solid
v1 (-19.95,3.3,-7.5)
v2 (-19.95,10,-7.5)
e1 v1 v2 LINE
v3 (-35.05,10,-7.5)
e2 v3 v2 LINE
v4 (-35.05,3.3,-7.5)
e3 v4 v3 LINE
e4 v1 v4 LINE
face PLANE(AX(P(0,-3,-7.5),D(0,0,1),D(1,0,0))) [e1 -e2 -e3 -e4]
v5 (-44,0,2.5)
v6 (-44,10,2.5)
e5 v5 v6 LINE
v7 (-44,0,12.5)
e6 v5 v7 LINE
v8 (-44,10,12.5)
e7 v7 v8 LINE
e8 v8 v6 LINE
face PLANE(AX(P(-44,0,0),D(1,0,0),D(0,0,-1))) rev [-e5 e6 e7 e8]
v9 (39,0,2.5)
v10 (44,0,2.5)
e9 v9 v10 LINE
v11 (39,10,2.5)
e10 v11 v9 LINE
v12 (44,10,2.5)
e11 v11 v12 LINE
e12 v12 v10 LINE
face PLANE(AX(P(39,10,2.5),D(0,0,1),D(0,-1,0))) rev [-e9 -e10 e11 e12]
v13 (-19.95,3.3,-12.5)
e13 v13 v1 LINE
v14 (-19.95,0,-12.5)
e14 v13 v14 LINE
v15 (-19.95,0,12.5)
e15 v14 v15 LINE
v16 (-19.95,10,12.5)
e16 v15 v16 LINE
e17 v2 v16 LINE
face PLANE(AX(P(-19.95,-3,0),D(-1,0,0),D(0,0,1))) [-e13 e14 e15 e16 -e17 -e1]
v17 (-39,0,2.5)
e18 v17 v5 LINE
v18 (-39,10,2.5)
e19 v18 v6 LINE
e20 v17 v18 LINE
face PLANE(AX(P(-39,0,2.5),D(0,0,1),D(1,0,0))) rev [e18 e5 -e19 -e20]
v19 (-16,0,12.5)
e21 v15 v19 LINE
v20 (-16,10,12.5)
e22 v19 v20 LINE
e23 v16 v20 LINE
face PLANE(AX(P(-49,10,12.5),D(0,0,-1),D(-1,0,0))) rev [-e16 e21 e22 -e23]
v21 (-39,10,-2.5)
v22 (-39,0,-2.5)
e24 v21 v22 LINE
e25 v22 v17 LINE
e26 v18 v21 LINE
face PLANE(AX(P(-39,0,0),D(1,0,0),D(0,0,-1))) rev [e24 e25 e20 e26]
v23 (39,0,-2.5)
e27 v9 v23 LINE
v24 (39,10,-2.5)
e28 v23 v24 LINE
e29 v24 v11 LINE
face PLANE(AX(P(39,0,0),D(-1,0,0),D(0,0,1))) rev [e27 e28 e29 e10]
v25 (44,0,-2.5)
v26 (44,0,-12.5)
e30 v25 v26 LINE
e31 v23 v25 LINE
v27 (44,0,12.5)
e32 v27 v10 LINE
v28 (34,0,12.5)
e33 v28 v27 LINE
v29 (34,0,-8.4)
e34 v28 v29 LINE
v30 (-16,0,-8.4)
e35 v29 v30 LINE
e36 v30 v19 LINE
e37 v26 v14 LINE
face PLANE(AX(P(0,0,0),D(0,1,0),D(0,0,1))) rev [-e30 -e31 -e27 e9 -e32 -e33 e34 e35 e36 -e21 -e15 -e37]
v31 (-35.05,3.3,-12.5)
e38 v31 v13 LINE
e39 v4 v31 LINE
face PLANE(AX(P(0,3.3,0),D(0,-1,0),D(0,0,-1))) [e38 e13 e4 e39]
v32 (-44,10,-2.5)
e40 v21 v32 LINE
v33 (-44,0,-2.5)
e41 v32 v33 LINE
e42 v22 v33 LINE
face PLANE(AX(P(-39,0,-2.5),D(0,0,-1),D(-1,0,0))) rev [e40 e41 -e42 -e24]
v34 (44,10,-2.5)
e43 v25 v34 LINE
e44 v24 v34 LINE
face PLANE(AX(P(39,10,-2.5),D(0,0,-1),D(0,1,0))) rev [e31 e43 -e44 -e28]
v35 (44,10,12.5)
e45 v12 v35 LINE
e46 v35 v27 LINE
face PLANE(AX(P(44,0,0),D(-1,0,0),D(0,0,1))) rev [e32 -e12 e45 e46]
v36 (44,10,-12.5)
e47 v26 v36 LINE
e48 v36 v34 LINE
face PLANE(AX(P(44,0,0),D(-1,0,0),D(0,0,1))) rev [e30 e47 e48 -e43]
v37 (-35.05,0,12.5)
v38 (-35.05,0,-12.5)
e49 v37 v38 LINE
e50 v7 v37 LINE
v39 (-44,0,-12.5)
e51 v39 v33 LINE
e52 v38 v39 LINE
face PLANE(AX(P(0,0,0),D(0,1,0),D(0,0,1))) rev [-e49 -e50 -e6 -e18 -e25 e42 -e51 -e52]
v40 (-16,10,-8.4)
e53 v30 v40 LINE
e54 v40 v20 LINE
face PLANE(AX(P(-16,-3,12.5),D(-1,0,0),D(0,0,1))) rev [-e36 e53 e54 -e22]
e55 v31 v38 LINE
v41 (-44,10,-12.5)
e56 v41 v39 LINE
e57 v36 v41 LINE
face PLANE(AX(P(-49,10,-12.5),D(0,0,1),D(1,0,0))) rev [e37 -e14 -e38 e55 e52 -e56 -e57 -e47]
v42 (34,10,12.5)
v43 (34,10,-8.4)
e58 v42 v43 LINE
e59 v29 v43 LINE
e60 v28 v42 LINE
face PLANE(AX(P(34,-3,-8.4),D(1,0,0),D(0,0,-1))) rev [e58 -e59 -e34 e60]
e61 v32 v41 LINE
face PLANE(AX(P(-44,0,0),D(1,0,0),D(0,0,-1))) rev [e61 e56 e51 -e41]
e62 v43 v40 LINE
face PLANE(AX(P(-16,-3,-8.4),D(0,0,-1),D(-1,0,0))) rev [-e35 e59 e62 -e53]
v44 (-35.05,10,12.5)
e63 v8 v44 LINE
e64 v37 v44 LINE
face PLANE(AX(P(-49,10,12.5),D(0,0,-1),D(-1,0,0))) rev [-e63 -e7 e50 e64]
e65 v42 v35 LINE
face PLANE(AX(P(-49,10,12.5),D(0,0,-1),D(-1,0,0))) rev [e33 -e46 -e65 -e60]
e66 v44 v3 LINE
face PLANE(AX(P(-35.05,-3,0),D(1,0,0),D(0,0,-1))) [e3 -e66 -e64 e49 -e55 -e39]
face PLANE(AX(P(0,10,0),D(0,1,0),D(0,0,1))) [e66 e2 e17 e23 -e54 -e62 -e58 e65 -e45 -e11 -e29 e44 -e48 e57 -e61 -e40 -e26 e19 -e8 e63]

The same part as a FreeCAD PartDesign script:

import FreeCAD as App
import Part
import Sketcher

V = App.Vector
Q = App.Units.Quantity


def add_polygon(sketch, points):
    """Adds a closed chain of lines whose ends are joined by coincident constraints."""
    first, n = sketch.GeometryCount, len(points)
    for a, b in zip(points, points[1:] + points[:1]):
        sketch.addGeometry(Part.LineSegment(App.Vector(*a, 0), App.Vector(*b, 0)), False)
    for i in range(n):
        sketch.addConstraint(Sketcher.Constraint("Coincident", first + i, 2, first + (i + 1) % n, 1))

doc = App.newDocument("Part")
body = doc.addObject("PartDesign::Body", "Body")

# Sketch on XZ plane
sketch1 = doc.addObject("Sketcher::SketchObject", "Sketch")
body.addObject(sketch1)
sketch1.AttachmentSupport = (doc.XZ_Plane, [""])
sketch1.MapMode = "FlatFace"
add_polygon(sketch1, [(-49, -12), (-49, 12), (49, 12), (49, -12)])  # lines 0-3
sketch1.addConstraint([
    Sketcher.Constraint("Vertical", 0),
    Sketcher.Constraint("Horizontal", 1),
    Sketcher.Constraint("Vertical", 2),
    Sketcher.Constraint("Horizontal", 3),
    Sketcher.Constraint("Symmetric", 0, 2, 2, 2, -1, 1),
    Sketcher.Constraint("DistanceX", 1, 1, 1, 2, Q("98 mm")),
    Sketcher.Constraint("DistanceY", 0, 1, 0, 2, Q("25 mm")),
])
pad1 = doc.addObject("PartDesign::Pad", "Pad")
body.addObject(pad1)
pad1.Profile = sketch1
pad1.Length = 10
pad1.Reversed = True

# Sketch on YZ plane
sketch2 = doc.addObject("Sketcher::SketchObject", "Sketch001")
body.addObject(sketch2)
sketch2.AttachmentSupport = (doc.YZ_Plane, [""])
sketch2.MapMode = "FlatFace"
sketch2.AttachmentOffset = App.Placement(V(0, 0, -49), App.Rotation())
add_polygon(sketch2, [(10, -12), (0, -12), (0, 12), (10, 12)])  # lines 0-3
sketch2.addConstraint([
    Sketcher.Constraint("Horizontal", 0),
    Sketcher.Constraint("Vertical", 1),
    Sketcher.Constraint("Horizontal", 2),
    Sketcher.Constraint("Vertical", 3),
    Sketcher.Constraint("Symmetric", 0, 2, 1, 2, -1, 1),
    Sketcher.Constraint("DistanceX", 0, 2, 0, 1, Q("10 mm")),
    Sketcher.Constraint("DistanceY", 1, 1, 1, 2, Q("25 mm")),
])
pocket1 = doc.addObject("PartDesign::Pocket", "Pocket")
body.addObject(pocket1)
pocket1.Profile = sketch2
pocket1.Length = 5
pocket1.Reversed = True

# Sketch on YZ plane
sketch3 = doc.addObject("Sketcher::SketchObject", "Sketch002")
body.addObject(sketch3)
sketch3.AttachmentSupport = (doc.YZ_Plane, [""])
sketch3.MapMode = "FlatFace"
sketch3.AttachmentOffset = App.Placement(V(0, 0, 49), App.Rotation())
add_polygon(sketch3, [(10, 12), (0, 12), (0, -12), (10, -12)])  # lines 0-3
sketch3.addConstraint([
    Sketcher.Constraint("Horizontal", 0),
    Sketcher.Constraint("Vertical", 1),
    Sketcher.Constraint("Horizontal", 2),
    Sketcher.Constraint("Vertical", 3),
    Sketcher.Constraint("Symmetric", 0, 2, 1, 2, -1, 1),
    Sketcher.Constraint("DistanceX", 0, 2, 0, 1, Q("10 mm")),
    Sketcher.Constraint("DistanceY", 1, 2, 1, 1, Q("25 mm")),
])
pocket2 = doc.addObject("PartDesign::Pocket", "Pocket001")
body.addObject(pocket2)
pocket2.Profile = sketch3
pocket2.Length = 5

# Sketch on YZ plane
sketch4 = doc.addObject("Sketcher::SketchObject", "Sketch003")
body.addObject(sketch4)
sketch4.AttachmentSupport = (doc.YZ_Plane, [""])
sketch4.MapMode = "FlatFace"
sketch4.AttachmentOffset = App.Placement(V(0, 0, 44), App.Rotation())
add_polygon(sketch4, [(10, 2), (0, 2), (0, -2), (10, -2)])  # lines 0-3
sketch4.addConstraint([
    Sketcher.Constraint("Horizontal", 0),
    Sketcher.Constraint("Vertical", 1),
    Sketcher.Constraint("Horizontal", 2),
    Sketcher.Constraint("Vertical", 3),
    Sketcher.Constraint("Symmetric", 0, 2, 1, 2, -1, 1),
    Sketcher.Constraint("DistanceX", 0, 2, 0, 1, Q("10 mm")),
    Sketcher.Constraint("DistanceY", 1, 2, 1, 1, Q("5 mm")),
])
pocket3 = doc.addObject("PartDesign::Pocket", "Pocket002")
body.addObject(pocket3)
pocket3.Profile = sketch4
pocket3.Length = 5

# Sketch on YZ plane
sketch5 = doc.addObject("Sketcher::SketchObject", "Sketch004")
body.addObject(sketch5)
sketch5.AttachmentSupport = (doc.YZ_Plane, [""])
sketch5.MapMode = "FlatFace"
sketch5.AttachmentOffset = App.Placement(V(0, 0, -44), App.Rotation())
add_polygon(sketch5, [(10, -2), (0, -2), (0, 2), (10, 2)])  # lines 0-3
sketch5.addConstraint([
    Sketcher.Constraint("Horizontal", 0),
    Sketcher.Constraint("Vertical", 1),
    Sketcher.Constraint("Horizontal", 2),
    Sketcher.Constraint("Vertical", 3),
    Sketcher.Constraint("Symmetric", 0, 2, 1, 2, -1, 1),
    Sketcher.Constraint("DistanceX", 0, 2, 0, 1, Q("10 mm")),
    Sketcher.Constraint("DistanceY", 1, 1, 1, 2, Q("5 mm")),
])
pocket4 = doc.addObject("PartDesign::Pocket", "Pocket003")
body.addObject(pocket4)
pocket4.Profile = sketch5
pocket4.Length = 5
pocket4.Reversed = True

# Sketch on XZ plane
sketch6 = doc.addObject("Sketcher::SketchObject", "Sketch005")
body.addObject(sketch6)
sketch6.AttachmentSupport = (doc.XZ_Plane, [""])
sketch6.MapMode = "FlatFace"
sketch6.AttachmentOffset = App.Placement(V(0, 0, -10), App.Rotation())
add_polygon(sketch6, [(-16, -8), (-16, 12), (34, 12), (34, -8)])  # lines 0-3
sketch6.addConstraint([
    Sketcher.Constraint("Vertical", 0),
    Sketcher.Constraint("Horizontal", 1),
    Sketcher.Constraint("Vertical", 2),
    Sketcher.Constraint("Horizontal", 3),
    Sketcher.Constraint("DistanceX", 1, 1, 1, 2, Q("50 mm")),
    Sketcher.Constraint("DistanceY", 0, 1, 0, 2, Q("20.9 mm")),
    Sketcher.Constraint("DistanceX", 0, 2, -1, 1, Q("16 mm")),
    Sketcher.Constraint("DistanceY", -1, 1, 0, 2, Q("12.5 mm")),
])
pocket5 = doc.addObject("PartDesign::Pocket", "Pocket004")
body.addObject(pocket5)
pocket5.Profile = sketch6
pocket5.Length = 13
pocket5.Reversed = True

# Sketch on XZ plane
sketch7 = doc.addObject("Sketcher::SketchObject", "Sketch006")
body.addObject(sketch7)
sketch7.AttachmentSupport = (doc.XZ_Plane, [""])
sketch7.MapMode = "FlatFace"
sketch7.AttachmentOffset = App.Placement(V(0, 0, -10), App.Rotation())
add_polygon(sketch7, [(-35, -8), (-35, 12), (-20, 12), (-20, -8)])  # lines 0-3
sketch7.addConstraint([
    Sketcher.Constraint("Vertical", 0),
    Sketcher.Constraint("Horizontal", 1),
    Sketcher.Constraint("Vertical", 2),
    Sketcher.Constraint("Horizontal", 3),
    Sketcher.Constraint("DistanceY", 0, 1, 0, 2, Q("20 mm")),
    Sketcher.Constraint("DistanceX", 1, 1, 1, 2, Q("15.1 mm")),
    Sketcher.Constraint("DistanceY", -1, 1, 0, 2, Q("12.5 mm")),
    Sketcher.Constraint("DistanceX", 0, 2, -1, 1, Q("35.05 mm")),
])
pocket6 = doc.addObject("PartDesign::Pocket", "Pocket005")
body.addObject(pocket6)
pocket6.Profile = sketch7
pocket6.Length = 13
pocket6.Reversed = True

# Sketch on XZ plane
sketch8 = doc.addObject("Sketcher::SketchObject", "Sketch007")
body.addObject(sketch8)
sketch8.AttachmentSupport = (doc.XZ_Plane, [""])
sketch8.MapMode = "FlatFace"
add_polygon(sketch8, [(-35, -8), (-35, -12), (-20, -12), (-20, -8)])  # lines 0-3
sketch8.addConstraint([
    Sketcher.Constraint("Vertical", 0),
    Sketcher.Constraint("Horizontal", 1),
    Sketcher.Constraint("Vertical", 2),
    Sketcher.Constraint("Horizontal", 3),
    Sketcher.Constraint("DistanceY", 0, 2, 0, 1, Q("5 mm")),
    Sketcher.Constraint("DistanceX", 1, 1, 1, 2, Q("15.1 mm")),
    Sketcher.Constraint("DistanceY", 0, 2, -1, 1, Q("12.5 mm")),
    Sketcher.Constraint("DistanceX", 0, 2, -1, 1, Q("35.05 mm")),
])
pocket7 = doc.addObject("PartDesign::Pocket", "Pocket006")
body.addObject(pocket7)
pocket7.Profile = sketch8
pocket7.Length = 3.3

doc.recompute()
